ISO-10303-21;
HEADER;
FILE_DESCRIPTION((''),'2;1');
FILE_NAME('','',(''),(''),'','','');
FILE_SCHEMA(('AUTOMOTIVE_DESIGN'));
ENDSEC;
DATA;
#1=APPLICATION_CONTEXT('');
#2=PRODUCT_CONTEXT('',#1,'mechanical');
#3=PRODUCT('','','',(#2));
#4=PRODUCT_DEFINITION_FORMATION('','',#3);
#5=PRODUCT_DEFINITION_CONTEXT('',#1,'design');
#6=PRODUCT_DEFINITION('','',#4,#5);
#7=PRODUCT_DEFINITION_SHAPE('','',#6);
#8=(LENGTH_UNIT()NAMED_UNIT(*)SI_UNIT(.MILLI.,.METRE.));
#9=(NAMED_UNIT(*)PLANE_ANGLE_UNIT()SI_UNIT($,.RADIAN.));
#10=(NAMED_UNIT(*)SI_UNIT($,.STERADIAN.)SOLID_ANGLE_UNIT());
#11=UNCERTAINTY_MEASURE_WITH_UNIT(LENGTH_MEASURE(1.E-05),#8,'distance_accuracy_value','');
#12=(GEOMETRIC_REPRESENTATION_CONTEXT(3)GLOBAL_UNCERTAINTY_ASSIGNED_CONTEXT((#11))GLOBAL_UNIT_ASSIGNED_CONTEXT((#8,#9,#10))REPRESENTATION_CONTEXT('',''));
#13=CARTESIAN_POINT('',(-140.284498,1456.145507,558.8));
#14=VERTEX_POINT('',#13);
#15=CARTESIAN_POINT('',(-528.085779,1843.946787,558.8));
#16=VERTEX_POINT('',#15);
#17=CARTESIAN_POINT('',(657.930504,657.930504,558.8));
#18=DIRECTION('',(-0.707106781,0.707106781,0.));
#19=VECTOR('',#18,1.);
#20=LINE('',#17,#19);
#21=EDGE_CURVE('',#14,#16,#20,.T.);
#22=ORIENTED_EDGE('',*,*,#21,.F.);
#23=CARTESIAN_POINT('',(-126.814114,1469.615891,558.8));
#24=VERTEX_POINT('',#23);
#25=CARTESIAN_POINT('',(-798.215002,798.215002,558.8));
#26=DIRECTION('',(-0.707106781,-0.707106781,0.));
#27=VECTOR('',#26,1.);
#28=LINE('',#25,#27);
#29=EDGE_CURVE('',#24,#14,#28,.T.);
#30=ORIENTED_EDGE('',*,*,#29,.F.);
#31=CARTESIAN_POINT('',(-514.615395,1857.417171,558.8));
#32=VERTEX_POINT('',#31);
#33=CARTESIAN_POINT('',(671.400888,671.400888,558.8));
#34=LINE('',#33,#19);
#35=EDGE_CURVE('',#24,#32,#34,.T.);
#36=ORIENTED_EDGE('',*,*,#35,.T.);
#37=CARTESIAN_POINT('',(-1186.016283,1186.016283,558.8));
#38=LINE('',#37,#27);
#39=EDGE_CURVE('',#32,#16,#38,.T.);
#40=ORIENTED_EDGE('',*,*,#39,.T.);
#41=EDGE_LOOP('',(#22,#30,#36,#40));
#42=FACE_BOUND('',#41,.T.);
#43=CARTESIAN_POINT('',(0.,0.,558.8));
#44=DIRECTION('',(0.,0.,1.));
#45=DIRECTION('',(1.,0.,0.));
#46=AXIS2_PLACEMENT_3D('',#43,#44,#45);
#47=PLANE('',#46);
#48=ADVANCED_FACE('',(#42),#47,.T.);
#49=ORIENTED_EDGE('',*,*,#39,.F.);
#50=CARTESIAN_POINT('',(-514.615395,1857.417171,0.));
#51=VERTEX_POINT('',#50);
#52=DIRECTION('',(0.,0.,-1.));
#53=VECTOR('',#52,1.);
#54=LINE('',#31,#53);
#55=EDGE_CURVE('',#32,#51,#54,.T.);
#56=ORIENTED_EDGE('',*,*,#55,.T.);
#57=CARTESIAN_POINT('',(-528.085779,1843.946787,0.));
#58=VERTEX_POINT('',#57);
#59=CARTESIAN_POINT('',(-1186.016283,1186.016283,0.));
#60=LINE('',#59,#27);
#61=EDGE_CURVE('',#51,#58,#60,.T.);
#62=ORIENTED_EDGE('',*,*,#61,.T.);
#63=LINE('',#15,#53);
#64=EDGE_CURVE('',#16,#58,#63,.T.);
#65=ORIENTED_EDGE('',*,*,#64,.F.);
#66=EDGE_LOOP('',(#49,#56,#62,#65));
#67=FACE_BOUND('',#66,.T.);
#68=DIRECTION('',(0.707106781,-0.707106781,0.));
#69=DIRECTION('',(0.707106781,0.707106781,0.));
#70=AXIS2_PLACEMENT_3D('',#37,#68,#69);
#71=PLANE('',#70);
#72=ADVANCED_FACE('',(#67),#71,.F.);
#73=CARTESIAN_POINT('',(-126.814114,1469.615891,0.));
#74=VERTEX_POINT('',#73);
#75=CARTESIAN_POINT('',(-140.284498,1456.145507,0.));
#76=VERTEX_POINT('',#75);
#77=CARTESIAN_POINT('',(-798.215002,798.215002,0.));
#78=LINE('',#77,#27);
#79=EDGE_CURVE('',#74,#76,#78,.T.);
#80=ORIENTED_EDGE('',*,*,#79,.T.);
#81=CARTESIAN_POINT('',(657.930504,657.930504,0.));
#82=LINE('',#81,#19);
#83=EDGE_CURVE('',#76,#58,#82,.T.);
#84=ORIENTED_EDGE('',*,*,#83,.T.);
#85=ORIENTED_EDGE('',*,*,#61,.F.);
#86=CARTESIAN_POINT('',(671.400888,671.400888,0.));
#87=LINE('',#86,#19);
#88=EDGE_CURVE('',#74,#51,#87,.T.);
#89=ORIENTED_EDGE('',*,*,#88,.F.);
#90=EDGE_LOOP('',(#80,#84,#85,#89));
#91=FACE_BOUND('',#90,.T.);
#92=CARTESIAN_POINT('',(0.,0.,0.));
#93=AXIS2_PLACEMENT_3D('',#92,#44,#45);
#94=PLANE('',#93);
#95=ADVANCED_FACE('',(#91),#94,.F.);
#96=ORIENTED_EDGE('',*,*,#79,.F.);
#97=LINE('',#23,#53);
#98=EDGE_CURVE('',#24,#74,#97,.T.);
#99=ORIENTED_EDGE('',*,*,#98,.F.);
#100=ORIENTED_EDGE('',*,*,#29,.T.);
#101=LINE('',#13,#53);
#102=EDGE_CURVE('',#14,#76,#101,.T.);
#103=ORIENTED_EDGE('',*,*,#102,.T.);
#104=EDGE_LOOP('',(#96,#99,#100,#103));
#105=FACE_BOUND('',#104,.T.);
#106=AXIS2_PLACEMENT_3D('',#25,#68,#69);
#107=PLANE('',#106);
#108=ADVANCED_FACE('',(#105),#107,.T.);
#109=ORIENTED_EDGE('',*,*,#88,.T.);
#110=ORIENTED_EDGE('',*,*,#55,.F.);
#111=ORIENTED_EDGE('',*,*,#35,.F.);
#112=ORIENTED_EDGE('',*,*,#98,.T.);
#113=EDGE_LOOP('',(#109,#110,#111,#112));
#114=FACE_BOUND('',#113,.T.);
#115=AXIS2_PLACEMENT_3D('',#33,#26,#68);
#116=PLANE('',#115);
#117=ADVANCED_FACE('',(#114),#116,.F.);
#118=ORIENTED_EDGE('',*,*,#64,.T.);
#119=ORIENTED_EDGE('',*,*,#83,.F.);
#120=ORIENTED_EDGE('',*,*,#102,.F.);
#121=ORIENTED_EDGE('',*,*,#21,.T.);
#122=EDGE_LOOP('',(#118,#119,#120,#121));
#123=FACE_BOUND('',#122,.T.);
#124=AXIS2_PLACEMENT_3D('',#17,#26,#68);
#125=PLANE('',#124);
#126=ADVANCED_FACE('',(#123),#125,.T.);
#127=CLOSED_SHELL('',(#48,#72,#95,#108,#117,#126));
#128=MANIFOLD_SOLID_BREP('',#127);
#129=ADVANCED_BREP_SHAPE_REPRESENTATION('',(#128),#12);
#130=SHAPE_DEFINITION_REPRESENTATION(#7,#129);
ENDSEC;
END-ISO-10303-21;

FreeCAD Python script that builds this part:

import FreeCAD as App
import Part
import Sketcher

V = App.Vector
Q = App.Units.Quantity


def add_polygon(sketch, points):
    """Adds a closed chain of lines whose ends are joined by coincident constraints."""
    first, n = sketch.GeometryCount, len(points)
    for a, b in zip(points, points[1:] + points[:1]):
        sketch.addGeometry(Part.LineSegment(App.Vector(*a, 0), App.Vector(*b, 0)), False)
    for i in range(n):
        sketch.addConstraint(Sketcher.Constraint("Coincident", first + i, 2, first + (i + 1) % n, 1))

doc = App.newDocument("Part")
params = doc.addObject("Spreadsheet::Sheet", "Params")
for row, (alias, value) in enumerate([
    ("sketch1_length", "0.75 in"),
    ("pad1_length", "22 in"),
], start=1):
    params.set(f"A{row}", alias)
    params.set(f"B{row}", "=" + value)
    params.setAlias(f"B{row}", alias)

body = doc.addObject("PartDesign::Body", "Body")

sketch1 = body.newObject("Sketcher::SketchObject", "Sketch")
sketch1.AttachmentSupport = (doc.getObject("XY_Plane"), [""])
sketch1.MapMode = "FlatFace"
add_polygon(sketch1, [(-127, 1470), (-515, 1857), (-528, 1844), (-140, 1456)])
sketch1.addConstraint([
    Sketcher.Constraint("Perpendicular", 0, 1),
    Sketcher.Constraint("Perpendicular", 1, 2),
    Sketcher.Constraint("Perpendicular", 2, 3),
    Sketcher.Constraint("Angle", 0, Q("135 deg")),
    Sketcher.Constraint("Distance", 1, Q("0.75 in")),
    Sketcher.Constraint("DistanceX", 2, 2, -1, 1, 140.284498),
    Sketcher.Constraint("Distance", 0, 548.433831),
    Sketcher.Constraint("DistanceY", -1, 1, 0, 2, 1857.417171),
])
sketch1.setExpression("Constraints[8]", "Params.sketch1_length")
pad1 = body.newObject("PartDesign::Pad", "Pad")
pad1.Profile = sketch1
pad1.setExpression("Length", "Params.pad1_length")

doc.recompute()
